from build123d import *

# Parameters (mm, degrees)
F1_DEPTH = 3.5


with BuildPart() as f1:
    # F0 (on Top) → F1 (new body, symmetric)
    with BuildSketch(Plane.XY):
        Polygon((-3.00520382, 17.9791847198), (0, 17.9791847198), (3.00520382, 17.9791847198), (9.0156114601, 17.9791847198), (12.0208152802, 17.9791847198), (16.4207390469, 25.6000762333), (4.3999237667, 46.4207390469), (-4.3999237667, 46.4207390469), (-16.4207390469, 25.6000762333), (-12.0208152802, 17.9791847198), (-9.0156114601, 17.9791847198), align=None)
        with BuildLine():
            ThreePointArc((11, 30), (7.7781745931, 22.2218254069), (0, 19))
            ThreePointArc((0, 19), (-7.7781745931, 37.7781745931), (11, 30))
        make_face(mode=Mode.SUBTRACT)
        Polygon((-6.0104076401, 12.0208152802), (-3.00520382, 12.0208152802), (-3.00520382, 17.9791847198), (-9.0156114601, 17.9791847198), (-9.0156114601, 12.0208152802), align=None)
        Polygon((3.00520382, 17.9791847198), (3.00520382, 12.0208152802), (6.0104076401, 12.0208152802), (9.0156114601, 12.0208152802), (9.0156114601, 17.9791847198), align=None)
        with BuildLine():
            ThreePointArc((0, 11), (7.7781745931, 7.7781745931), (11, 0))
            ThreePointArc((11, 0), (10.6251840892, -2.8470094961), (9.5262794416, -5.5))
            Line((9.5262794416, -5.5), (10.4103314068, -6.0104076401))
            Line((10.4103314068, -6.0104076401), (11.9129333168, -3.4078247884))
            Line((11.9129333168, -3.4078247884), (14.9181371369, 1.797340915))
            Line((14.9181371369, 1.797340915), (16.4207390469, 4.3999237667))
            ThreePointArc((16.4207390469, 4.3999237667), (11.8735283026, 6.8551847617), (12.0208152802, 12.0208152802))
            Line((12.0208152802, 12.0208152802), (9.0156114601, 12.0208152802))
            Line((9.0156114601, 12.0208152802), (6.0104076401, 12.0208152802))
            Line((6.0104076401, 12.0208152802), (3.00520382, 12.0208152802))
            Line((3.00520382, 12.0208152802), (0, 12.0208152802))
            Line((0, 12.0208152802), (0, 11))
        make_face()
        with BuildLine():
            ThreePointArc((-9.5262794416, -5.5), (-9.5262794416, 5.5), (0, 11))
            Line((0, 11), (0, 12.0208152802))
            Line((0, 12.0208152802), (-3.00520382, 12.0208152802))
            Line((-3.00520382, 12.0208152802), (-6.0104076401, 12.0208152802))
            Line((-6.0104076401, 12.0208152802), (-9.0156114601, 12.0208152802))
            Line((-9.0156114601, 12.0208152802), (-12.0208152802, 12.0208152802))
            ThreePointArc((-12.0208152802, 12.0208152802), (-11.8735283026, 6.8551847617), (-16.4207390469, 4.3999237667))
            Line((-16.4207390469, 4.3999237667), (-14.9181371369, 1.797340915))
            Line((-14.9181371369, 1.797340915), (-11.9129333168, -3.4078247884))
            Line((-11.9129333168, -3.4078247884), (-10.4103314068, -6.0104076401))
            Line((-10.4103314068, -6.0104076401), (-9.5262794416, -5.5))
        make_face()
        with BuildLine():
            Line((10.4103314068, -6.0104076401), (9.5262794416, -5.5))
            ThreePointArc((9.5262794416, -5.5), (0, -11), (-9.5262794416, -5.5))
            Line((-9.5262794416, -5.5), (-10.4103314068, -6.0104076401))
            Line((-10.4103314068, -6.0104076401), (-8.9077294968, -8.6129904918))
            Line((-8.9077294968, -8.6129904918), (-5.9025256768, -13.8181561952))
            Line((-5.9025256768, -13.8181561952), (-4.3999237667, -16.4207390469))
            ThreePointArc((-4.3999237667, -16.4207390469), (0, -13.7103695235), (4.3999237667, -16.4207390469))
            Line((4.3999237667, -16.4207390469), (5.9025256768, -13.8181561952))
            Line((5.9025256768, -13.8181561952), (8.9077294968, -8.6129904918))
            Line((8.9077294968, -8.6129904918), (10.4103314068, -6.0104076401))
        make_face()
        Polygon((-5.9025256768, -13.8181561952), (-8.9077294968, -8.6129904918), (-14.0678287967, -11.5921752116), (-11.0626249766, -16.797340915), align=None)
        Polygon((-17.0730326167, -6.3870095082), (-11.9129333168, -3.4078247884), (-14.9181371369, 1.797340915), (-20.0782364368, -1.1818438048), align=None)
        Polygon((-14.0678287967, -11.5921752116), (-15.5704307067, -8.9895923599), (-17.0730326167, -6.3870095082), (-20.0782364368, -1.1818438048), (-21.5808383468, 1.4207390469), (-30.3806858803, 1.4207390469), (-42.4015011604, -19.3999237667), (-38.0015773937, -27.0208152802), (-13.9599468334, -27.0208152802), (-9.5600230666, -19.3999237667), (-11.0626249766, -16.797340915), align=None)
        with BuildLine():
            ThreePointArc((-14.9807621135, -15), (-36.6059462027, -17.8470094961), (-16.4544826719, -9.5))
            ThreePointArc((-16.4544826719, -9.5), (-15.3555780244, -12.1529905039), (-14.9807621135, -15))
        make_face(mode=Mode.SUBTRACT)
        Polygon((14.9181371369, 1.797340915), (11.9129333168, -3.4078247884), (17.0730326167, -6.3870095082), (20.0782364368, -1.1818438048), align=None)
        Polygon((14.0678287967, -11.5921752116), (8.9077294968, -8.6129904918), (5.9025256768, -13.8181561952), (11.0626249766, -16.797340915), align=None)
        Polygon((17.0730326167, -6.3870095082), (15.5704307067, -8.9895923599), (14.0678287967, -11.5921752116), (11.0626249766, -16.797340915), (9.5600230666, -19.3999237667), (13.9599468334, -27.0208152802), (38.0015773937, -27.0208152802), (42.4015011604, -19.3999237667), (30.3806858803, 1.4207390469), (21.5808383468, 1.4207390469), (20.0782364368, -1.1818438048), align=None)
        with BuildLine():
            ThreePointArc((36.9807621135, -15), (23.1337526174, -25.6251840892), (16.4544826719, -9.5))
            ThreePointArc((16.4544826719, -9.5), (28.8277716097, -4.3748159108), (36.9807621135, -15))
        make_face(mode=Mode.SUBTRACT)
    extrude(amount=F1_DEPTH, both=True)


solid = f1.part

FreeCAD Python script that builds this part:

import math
import FreeCAD as App
import Part
import Sketcher

V = App.Vector
Q = App.Units.Quantity


def add_polygon(sketch, points):
    """Adds a closed chain of lines whose ends are joined by coincident constraints."""
    first, n = sketch.GeometryCount, len(points)
    for a, b in zip(points, points[1:] + points[:1]):
        sketch.addGeometry(Part.LineSegment(App.Vector(*a, 0), App.Vector(*b, 0)), False)
    for i in range(n):
        sketch.addConstraint(Sketcher.Constraint("Coincident", first + i, 2, first + (i + 1) % n, 1))

doc = App.newDocument("Part")
body = doc.addObject("PartDesign::Body", "Body")

# Sketch on XY plane
sketch1 = doc.addObject("Sketcher::SketchObject", "Sketch")
body.addObject(sketch1)
sketch1.AttachmentSupport = (doc.XY_Plane, [""])
sketch1.MapMode = "FlatFace"
sketch1.addGeometry(Part.LineSegment(V(12, 18, 0), V(16.4, 25.6, 0)), False)  # 0
sketch1.addGeometry(Part.LineSegment(V(16.4, 25.6, 0), V(4.4, 46.4, 0)), False)  # 1
sketch1.addGeometry(Part.LineSegment(V(4.4, 46.4, 0), V(-4.4, 46.4, 0)), False)  # 2
sketch1.addGeometry(Part.LineSegment(V(-4.4, 46.4, 0), V(-16.4, 25.6, 0)), False)  # 3
sketch1.addGeometry(Part.LineSegment(V(-16.4, 25.6, 0), V(-12, 18, 0)), False)  # 4
sketch1.addGeometry(Part.LineSegment(V(-12, 18, 0), V(-9, 18, 0)), False)  # 5
sketch1.addGeometry(Part.LineSegment(V(-9, 18, 0), V(-9, 12, 0)), False)  # 6
sketch1.addGeometry(Part.LineSegment(V(-9, 12, 0), V(-12, 12, 0)), False)  # 7
sketch1.addGeometry(Part.ArcOfCircle(Part.Circle(V(-16.1, 9.3, 0), V(0, 0, 1), 4.9), math.radians(-93), math.radians(33)), False)  # 8
sketch1.addGeometry(Part.LineSegment(V(-16.4, 4.4, 0), V(-14.9, 1.8, 0)), False)  # 9
sketch1.addGeometry(Part.LineSegment(V(-14.9, 1.8, 0), V(-20.1, -1.2, 0)), False)  # 10
sketch1.addGeometry(Part.LineSegment(V(-20.1, -1.2, 0), V(-21.6, 1.4, 0)), False)  # 11
sketch1.addGeometry(Part.LineSegment(V(-21.6, 1.4, 0), V(-30.4, 1.4, 0)), False)  # 12
sketch1.addGeometry(Part.LineSegment(V(-30.4, 1.4, 0), V(-42.4, -19.4, 0)), False)  # 13
sketch1.addGeometry(Part.LineSegment(V(-42.4, -19.4, 0), V(-38, -27, 0)), False)  # 14
sketch1.addGeometry(Part.LineSegment(V(-38, -27, 0), V(-14, -27, 0)), False)  # 15
sketch1.addGeometry(Part.LineSegment(V(-14, -27, 0), V(-9.6, -19.4, 0)), False)  # 16
sketch1.addGeometry(Part.LineSegment(V(-9.6, -19.4, 0), V(-11.1, -16.8, 0)), False)  # 17
sketch1.addGeometry(Part.LineSegment(V(-11.1, -16.8, 0), V(-5.9, -13.8, 0)), False)  # 18
sketch1.addGeometry(Part.LineSegment(V(-5.9, -13.8, 0), V(-4.4, -16.4, 0)), False)  # 19
sketch1.addGeometry(Part.ArcOfCircle(Part.Circle(V(0, -18.6, 0), V(0, 0, 1), 4.9), math.radians(27), math.radians(153)), False)  # 20
sketch1.addGeometry(Part.LineSegment(V(4.4, -16.4, 0), V(5.9, -13.8, 0)), False)  # 21
sketch1.addGeometry(Part.LineSegment(V(5.9, -13.8, 0), V(11.1, -16.8, 0)), False)  # 22
sketch1.addGeometry(Part.LineSegment(V(11.1, -16.8, 0), V(9.6, -19.4, 0)), False)  # 23
sketch1.addGeometry(Part.LineSegment(V(9.6, -19.4, 0), V(14, -27, 0)), False)  # 24
sketch1.addGeometry(Part.LineSegment(V(14, -27, 0), V(38, -27, 0)), False)  # 25
sketch1.addGeometry(Part.LineSegment(V(38, -27, 0), V(42.4, -19.4, 0)), False)  # 26
sketch1.addGeometry(Part.LineSegment(V(42.4, -19.4, 0), V(30.4, 1.4, 0)), False)  # 27
sketch1.addGeometry(Part.LineSegment(V(30.4, 1.4, 0), V(21.6, 1.4, 0)), False)  # 28
sketch1.addGeometry(Part.LineSegment(V(21.6, 1.4, 0), V(20.1, -1.2, 0)), False)  # 29
sketch1.addGeometry(Part.LineSegment(V(20.1, -1.2, 0), V(14.9, 1.8, 0)), False)  # 30
sketch1.addGeometry(Part.LineSegment(V(14.9, 1.8, 0), V(16.4, 4.4, 0)), False)  # 31
sketch1.addGeometry(Part.ArcOfCircle(Part.Circle(V(16.1, 9.3, 0), V(0, 0, 1), 4.9), math.radians(147), math.radians(273)), False)  # 32
sketch1.addGeometry(Part.LineSegment(V(12, 12, 0), V(9, 12, 0)), False)  # 33
sketch1.addGeometry(Part.LineSegment(V(9, 12, 0), V(9, 18, 0)), False)  # 34
sketch1.addGeometry(Part.LineSegment(V(9, 18, 0), V(12, 18, 0)), False)  # 35
sketch1.addGeometry(Part.ArcOfCircle(Part.Circle(V(-26, -15, 0), V(0, 0, 1), 11), math.radians(0), math.radians(30)), False)  # 36
sketch1.addGeometry(Part.ArcOfCircle(Part.Circle(V(-26, -15, 0), V(0, 0, 1), 11), math.radians(30), math.radians(360)), False)  # 37
add_polygon(sketch1, [(-17.1, -6.4), (-11.9, -3.4), (-8.9, -8.6), (-14.1, -11.6)])  # lines 38-41
sketch1.addGeometry(Part.ArcOfCircle(Part.Circle(V(26, -15, 0), V(0, 0, 1), 11), math.radians(0), math.radians(150)), False)  # 42
sketch1.addGeometry(Part.ArcOfCircle(Part.Circle(V(26, -15, 0), V(0, 0, 1), 11), math.radians(150), math.radians(360)), False)  # 43
add_polygon(sketch1, [(14.1, -11.6), (8.9, -8.6), (11.9, -3.4), (17.1, -6.4)])  # lines 44-47
sketch1.addGeometry(Part.ArcOfCircle(Part.Circle(V(0, 0, 0), V(0, 0, 1), 11), math.radians(90), math.radians(210)), False)  # 48
sketch1.addGeometry(Part.ArcOfCircle(Part.Circle(V(0, 0, 0), V(0, 0, 1), 11), math.radians(0), math.radians(90)), False)  # 49
sketch1.addGeometry(Part.ArcOfCircle(Part.Circle(V(0, 0, 0), V(0, 0, 1), 11), math.radians(-30), math.radians(0)), False)  # 50
sketch1.addGeometry(Part.ArcOfCircle(Part.Circle(V(0, 0, 0), V(0, 0, 1), 11), math.radians(-150), math.radians(-30)), False)  # 51
add_polygon(sketch1, [(-3, 12), (-3, 18), (3, 18), (3, 12)])  # lines 52-55
sketch1.addGeometry(Part.ArcOfCircle(Part.Circle(V(0, 30, 0), V(0, 0, 1), 11), math.radians(0), math.radians(270)), False)  # 56
sketch1.addGeometry(Part.ArcOfCircle(Part.Circle(V(0, 30, 0), V(0, 0, 1), 11), math.radians(-90), math.radians(0)), False)  # 57
sketch1.addConstraint(Sketcher.Constraint("Coincident", 0, 2, 1, 1))
sketch1.addConstraint(Sketcher.Constraint("Coincident", 1, 2, 2, 1))
sketch1.addConstraint(Sketcher.Constraint("Coincident", 2, 2, 3, 1))
sketch1.addConstraint(Sketcher.Constraint("Coincident", 3, 2, 4, 1))
sketch1.addConstraint(Sketcher.Constraint("Coincident", 4, 2, 5, 1))
sketch1.addConstraint(Sketcher.Constraint("Coincident", 5, 2, 6, 1))
sketch1.addConstraint(Sketcher.Constraint("Coincident", 6, 2, 7, 1))
sketch1.addConstraint(Sketcher.Constraint("Coincident", 7, 2, 8, 2))
sketch1.addConstraint(Sketcher.Constraint("Coincident", 8, 1, 9, 1))
sketch1.addConstraint(Sketcher.Constraint("Coincident", 9, 2, 10, 1))
sketch1.addConstraint(Sketcher.Constraint("Coincident", 10, 2, 11, 1))
sketch1.addConstraint(Sketcher.Constraint("Coincident", 11, 2, 12, 1))
sketch1.addConstraint(Sketcher.Constraint("Coincident", 12, 2, 13, 1))
sketch1.addConstraint(Sketcher.Constraint("Coincident", 13, 2, 14, 1))
sketch1.addConstraint(Sketcher.Constraint("Coincident", 14, 2, 15, 1))
sketch1.addConstraint(Sketcher.Constraint("Coincident", 15, 2, 16, 1))
sketch1.addConstraint(Sketcher.Constraint("Coincident", 16, 2, 17, 1))
sketch1.addConstraint(Sketcher.Constraint("Coincident", 17, 2, 18, 1))
sketch1.addConstraint(Sketcher.Constraint("Coincident", 18, 2, 19, 1))
sketch1.addConstraint(Sketcher.Constraint("Coincident", 19, 2, 20, 2))
sketch1.addConstraint(Sketcher.Constraint("Coincident", 20, 1, 21, 1))
sketch1.addConstraint(Sketcher.Constraint("Coincident", 21, 2, 22, 1))
sketch1.addConstraint(Sketcher.Constraint("Coincident", 22, 2, 23, 1))
sketch1.addConstraint(Sketcher.Constraint("Coincident", 23, 2, 24, 1))
sketch1.addConstraint(Sketcher.Constraint("Coincident", 24, 2, 25, 1))
sketch1.addConstraint(Sketcher.Constraint("Coincident", 25, 2, 26, 1))
sketch1.addConstraint(Sketcher.Constraint("Coincident", 26, 2, 27, 1))
sketch1.addConstraint(Sketcher.Constraint("Coincident", 27, 2, 28, 1))
sketch1.addConstraint(Sketcher.Constraint("Coincident", 28, 2, 29, 1))
sketch1.addConstraint(Sketcher.Constraint("Coincident", 29, 2, 30, 1))
sketch1.addConstraint(Sketcher.Constraint("Coincident", 30, 2, 31, 1))
sketch1.addConstraint(Sketcher.Constraint("Coincident", 31, 2, 32, 2))
sketch1.addConstraint(Sketcher.Constraint("Coincident", 32, 1, 33, 1))
sketch1.addConstraint(Sketcher.Constraint("Coincident", 33, 2, 34, 1))
sketch1.addConstraint(Sketcher.Constraint("Coincident", 34, 2, 35, 1))
sketch1.addConstraint(Sketcher.Constraint("Coincident", 35, 2, 0, 1))
sketch1.addConstraint(Sketcher.Constraint("Tangent", 36, 1, 37, 2))
sketch1.addConstraint(Sketcher.Constraint("Coincident", 37, 1, 36, 2))
sketch1.addConstraint(Sketcher.Constraint("Tangent", 42, 1, 43, 2))
sketch1.addConstraint(Sketcher.Constraint("Coincident", 43, 1, 42, 2))
sketch1.addConstraint(Sketcher.Constraint("Tangent", 48, 1, 49, 2))
sketch1.addConstraint(Sketcher.Constraint("Tangent", 49, 1, 50, 2))
sketch1.addConstraint(Sketcher.Constraint("Tangent", 50, 1, 51, 2))
sketch1.addConstraint(Sketcher.Constraint("Tangent", 51, 1, 48, 2))
sketch1.addConstraint(Sketcher.Constraint("Tangent", 56, 1, 57, 2))
sketch1.addConstraint(Sketcher.Constraint("Coincident", 57, 1, 56, 2))
sketch1.addConstraint(Sketcher.Constraint("Horizontal", 2))
sketch1.addConstraint(Sketcher.Constraint("Horizontal", 5))
sketch1.addConstraint(Sketcher.Constraint("Vertical", 6))
sketch1.addConstraint(Sketcher.Constraint("Horizontal", 7))
sketch1.addConstraint(Sketcher.Constraint("Horizontal", 12))
sketch1.addConstraint(Sketcher.Constraint("Horizontal", 15))
sketch1.addConstraint(Sketcher.Constraint("Horizontal", 25))
sketch1.addConstraint(Sketcher.Constraint("Horizontal", 28))
sketch1.addConstraint(Sketcher.Constraint("Horizontal", 33))
sketch1.addConstraint(Sketcher.Constraint("Vertical", 34))
sketch1.addConstraint(Sketcher.Constraint("Horizontal", 35))
sketch1.addConstraint(Sketcher.Constraint("Vertical", 52))
sketch1.addConstraint(Sketcher.Constraint("Horizontal", 53))
sketch1.addConstraint(Sketcher.Constraint("Vertical", 54))
sketch1.addConstraint(Sketcher.Constraint("Horizontal", 55))
sketch1.addConstraint(Sketcher.Constraint("Coincident", 48, 3, -1, 1))
sketch1.addConstraint(Sketcher.Constraint("Equal", 8, 20))
sketch1.addConstraint(Sketcher.Constraint("Equal", 20, 32))
sketch1.addConstraint(Sketcher.Constraint("Equal", 37, 42))
sketch1.addConstraint(Sketcher.Constraint("Equal", 43, 48))
sketch1.addConstraint(Sketcher.Constraint("Equal", 48, 49))
sketch1.addConstraint(Sketcher.Constraint("Equal", 51, 56))
sketch1.addConstraint(Sketcher.Constraint("Symmetric", 8, 3, 32, 3, -2))
sketch1.addConstraint(Sketcher.Constraint("Symmetric", 36, 3, 42, 3, -2))
sketch1.addConstraint(Sketcher.Constraint("Symmetric", 0, 2, 3, 2, -2))
sketch1.addConstraint(Sketcher.Constraint("Symmetric", 19, 2, 20, 1, -2))
sketch1.addConstraint(Sketcher.Constraint("Symmetric", 18, 2, 21, 2, -2))
sketch1.addConstraint(Sketcher.Constraint("Symmetric", 17, 2, 22, 2, -2))
sketch1.addConstraint(Sketcher.Constraint("Symmetric", 16, 2, 23, 2, -2))
sketch1.addConstraint(Sketcher.Constraint("Symmetric", 15, 2, 24, 2, -2))
sketch1.addConstraint(Sketcher.Constraint("Symmetric", 13, 2, 26, 2, -2))
sketch1.addConstraint(Sketcher.Constraint("Symmetric", 12, 2, 27, 2, -2))
sketch1.addConstraint(Sketcher.Constraint("Symmetric", 10, 2, 29, 2, -2))
sketch1.addConstraint(Sketcher.Constraint("Symmetric", 9, 2, 30, 2, -2))
sketch1.addConstraint(Sketcher.Constraint("Symmetric", 6, 2, 33, 2, -2))
sketch1.addConstraint(Sketcher.Constraint("Symmetric", 4, 2, 35, 2, -2))
sketch1.addConstraint(Sketcher.Constraint("Symmetric", 39, 2, 44, 2, -2))
sketch1.addConstraint(Sketcher.Constraint("Symmetric", 38, 2, 45, 2, -2))
sketch1.addConstraint(Sketcher.Constraint("Symmetric", 41, 2, 46, 2, -2))
sketch1.addConstraint(Sketcher.Constraint("Symmetric", 40, 2, 47, 2, -2))
sketch1.addConstraint(Sketcher.Constraint("PointOnObject", 56, 3, -2))
sketch1.addConstraint(Sketcher.Constraint("PointOnObject", 48, 1, -2))
sketch1.addConstraint(Sketcher.Constraint("PointOnObject", 49, 1, -1))
sketch1.addConstraint(Sketcher.Constraint("PointOnObject", 57, 1, -2))
sketch1.addConstraint(Sketcher.Constraint("Parallel", 0, 3))
sketch1.addConstraint(Sketcher.Constraint("Parallel", 1, 4))
sketch1.addConstraint(Sketcher.Constraint("Parallel", 4, 9))
sketch1.addConstraint(Sketcher.Constraint("Perpendicular", 9, 10))
sketch1.addConstraint(Sketcher.Constraint("Perpendicular", 10, 11))
sketch1.addConstraint(Sketcher.Constraint("Parallel", 3, 13))
sketch1.addConstraint(Sketcher.Constraint("Parallel", 11, 14))
sketch1.addConstraint(Sketcher.Constraint("Parallel", 13, 16))
sketch1.addConstraint(Sketcher.Constraint("Parallel", 14, 17))
sketch1.addConstraint(Sketcher.Constraint("Perpendicular", 17, 18))
sketch1.addConstraint(Sketcher.Constraint("Perpendicular", 18, 19))
sketch1.addConstraint(Sketcher.Constraint("Parallel", 23, 26))
sketch1.addConstraint(Sketcher.Constraint("Parallel", 26, 29))
sketch1.addConstraint(Sketcher.Constraint("Perpendicular", 30, 31))
sketch1.addConstraint(Sketcher.Constraint("Perpendicular", 27, 38))
sketch1.addConstraint(Sketcher.Constraint("Perpendicular", 38, 39))
sketch1.addConstraint(Sketcher.Constraint("Perpendicular", 39, 40))
sketch1.addConstraint(Sketcher.Constraint("Perpendicular", 40, 41))
sketch1.addConstraint(Sketcher.Constraint("Horizontal", 13, 2, 16, 2))
sketch1.addConstraint(Sketcher.Constraint("Horizontal", 43, 3, 36, 1))
sketch1.addConstraint(Sketcher.Constraint("Horizontal", 36, 1, 42, 1))
sketch1.addConstraint(Sketcher.Constraint("Horizontal", 37, 1, 43, 1))
sketch1.addConstraint(Sketcher.Constraint("Horizontal", 50, 1, 51, 1))
sketch1.addConstraint(Sketcher.Constraint("Horizontal", 35, 2, 52, 2))
sketch1.addConstraint(Sketcher.Constraint("Horizontal", 33, 2, 54, 2))
sketch1.addConstraint(Sketcher.Constraint("Horizontal", 57, 3, 56, 1))
sketch1.addConstraint(Sketcher.Constraint("Vertical", 4, 2, 7, 2))
sketch1.addConstraint(Sketcher.Constraint("Vertical", 3, 2, 8, 1))
sketch1.addConstraint(Sketcher.Constraint("Vertical", 2, 2, 19, 2))
sketch1.addConstraint(Sketcher.Constraint("Equal", 2, 12))
sketch1.addConstraint(Sketcher.Constraint("Equal", 9, 11))
sketch1.addConstraint(Sketcher.Constraint("Equal", 3, 13))
sketch1.addConstraint(Sketcher.Constraint("Equal", 4, 14))
sketch1.addConstraint(Sketcher.Constraint("Equal", 11, 17))
sketch1.addConstraint(Sketcher.Constraint("Equal", 10, 18))
sketch1.addConstraint(Sketcher.Constraint("Equal", 17, 19))
sketch1.addConstraint(Sketcher.Constraint("Equal", 30, 38))
sketch1.addConstraint(Sketcher.Constraint("Radius", 36, Q("11 mm")))
sketch1.addConstraint(Sketcher.Constraint("Angle", 0, Q("60 deg")))
sketch1.addConstraint(Sketcher.Constraint("DistanceY", 36, 3, -1, 1, Q("15 mm")))
sketch1.addConstraint(Sketcher.Constraint("DistanceY", -1, 1, 56, 3, Q("30 mm")))
sketch1.addConstraint(Sketcher.Constraint("DistanceY", 37, 1, -1, 1, Q("9.5 mm")))
sketch1.addConstraint(Sketcher.Constraint("DistanceY", 50, 1, -1, 1, Q("5.5 mm")))
sketch1.addConstraint(Sketcher.Constraint("Radius", 8, Q("4.92653 mm")))
sketch1.addConstraint(Sketcher.Constraint("DistanceX", 15, 1, 15, 2, Q("24.041631 mm")))
sketch1.addConstraint(Sketcher.Constraint("DistanceY", 6, 2, 6, 1, Q("5.958369 mm")))
sketch1.addConstraint(Sketcher.Constraint("DistanceY", 20, 3, -1, 1, Q("18.636899 mm")))
sketch1.addConstraint(Sketcher.Constraint("DistanceX", 13, 2, -1, 1, Q("42.401501 mm")))
sketch1.addConstraint(Sketcher.Constraint("Distance", 1, Q("24.041631 mm")))
sketch1.addConstraint(Sketcher.Constraint("Distance", 10, Q("5.958369 mm")))
sketch1.addConstraint(Sketcher.Constraint("DistanceX", 5, 1, 5, 2, Q("3.005204 mm")))
sketch1.addConstraint(Sketcher.Constraint("DistanceX", 53, 1, 53, 2, Q("6.010408 mm")))
sketch1.addConstraint(Sketcher.Constraint("DistanceX", 8, 3, -1, 1, Q("16.140028 mm")))
sketch1.addConstraint(Sketcher.Constraint("DistanceY", -1, 1, 9, 2, Q("1.797341 mm")))
sketch1.addConstraint(Sketcher.Constraint("DistanceX", 39, 2, -1, 1, Q("8.907729 mm")))
sketch1.addConstraint(Sketcher.Constraint("DistanceY", 39, 2, -1, 1, Q("8.61299 mm")))
sketch1.addConstraint(Sketcher.Constraint("DistanceY", 41, 2, -1, 1, Q("6.38701 mm")))
sketch1.addConstraint(Sketcher.Constraint("DistanceX", 36, 3, -1, 1, Q("25.980762 mm")))
sketch1.addConstraint(Sketcher.Constraint("DistanceX", 52, 2, -1, 1, Q("3.005204 mm")))
pad1 = doc.addObject("PartDesign::Pad", "Pad")
body.addObject(pad1)
pad1.Profile = sketch1
pad1.Length = 7
pad1.Midplane = True

doc.recompute()
